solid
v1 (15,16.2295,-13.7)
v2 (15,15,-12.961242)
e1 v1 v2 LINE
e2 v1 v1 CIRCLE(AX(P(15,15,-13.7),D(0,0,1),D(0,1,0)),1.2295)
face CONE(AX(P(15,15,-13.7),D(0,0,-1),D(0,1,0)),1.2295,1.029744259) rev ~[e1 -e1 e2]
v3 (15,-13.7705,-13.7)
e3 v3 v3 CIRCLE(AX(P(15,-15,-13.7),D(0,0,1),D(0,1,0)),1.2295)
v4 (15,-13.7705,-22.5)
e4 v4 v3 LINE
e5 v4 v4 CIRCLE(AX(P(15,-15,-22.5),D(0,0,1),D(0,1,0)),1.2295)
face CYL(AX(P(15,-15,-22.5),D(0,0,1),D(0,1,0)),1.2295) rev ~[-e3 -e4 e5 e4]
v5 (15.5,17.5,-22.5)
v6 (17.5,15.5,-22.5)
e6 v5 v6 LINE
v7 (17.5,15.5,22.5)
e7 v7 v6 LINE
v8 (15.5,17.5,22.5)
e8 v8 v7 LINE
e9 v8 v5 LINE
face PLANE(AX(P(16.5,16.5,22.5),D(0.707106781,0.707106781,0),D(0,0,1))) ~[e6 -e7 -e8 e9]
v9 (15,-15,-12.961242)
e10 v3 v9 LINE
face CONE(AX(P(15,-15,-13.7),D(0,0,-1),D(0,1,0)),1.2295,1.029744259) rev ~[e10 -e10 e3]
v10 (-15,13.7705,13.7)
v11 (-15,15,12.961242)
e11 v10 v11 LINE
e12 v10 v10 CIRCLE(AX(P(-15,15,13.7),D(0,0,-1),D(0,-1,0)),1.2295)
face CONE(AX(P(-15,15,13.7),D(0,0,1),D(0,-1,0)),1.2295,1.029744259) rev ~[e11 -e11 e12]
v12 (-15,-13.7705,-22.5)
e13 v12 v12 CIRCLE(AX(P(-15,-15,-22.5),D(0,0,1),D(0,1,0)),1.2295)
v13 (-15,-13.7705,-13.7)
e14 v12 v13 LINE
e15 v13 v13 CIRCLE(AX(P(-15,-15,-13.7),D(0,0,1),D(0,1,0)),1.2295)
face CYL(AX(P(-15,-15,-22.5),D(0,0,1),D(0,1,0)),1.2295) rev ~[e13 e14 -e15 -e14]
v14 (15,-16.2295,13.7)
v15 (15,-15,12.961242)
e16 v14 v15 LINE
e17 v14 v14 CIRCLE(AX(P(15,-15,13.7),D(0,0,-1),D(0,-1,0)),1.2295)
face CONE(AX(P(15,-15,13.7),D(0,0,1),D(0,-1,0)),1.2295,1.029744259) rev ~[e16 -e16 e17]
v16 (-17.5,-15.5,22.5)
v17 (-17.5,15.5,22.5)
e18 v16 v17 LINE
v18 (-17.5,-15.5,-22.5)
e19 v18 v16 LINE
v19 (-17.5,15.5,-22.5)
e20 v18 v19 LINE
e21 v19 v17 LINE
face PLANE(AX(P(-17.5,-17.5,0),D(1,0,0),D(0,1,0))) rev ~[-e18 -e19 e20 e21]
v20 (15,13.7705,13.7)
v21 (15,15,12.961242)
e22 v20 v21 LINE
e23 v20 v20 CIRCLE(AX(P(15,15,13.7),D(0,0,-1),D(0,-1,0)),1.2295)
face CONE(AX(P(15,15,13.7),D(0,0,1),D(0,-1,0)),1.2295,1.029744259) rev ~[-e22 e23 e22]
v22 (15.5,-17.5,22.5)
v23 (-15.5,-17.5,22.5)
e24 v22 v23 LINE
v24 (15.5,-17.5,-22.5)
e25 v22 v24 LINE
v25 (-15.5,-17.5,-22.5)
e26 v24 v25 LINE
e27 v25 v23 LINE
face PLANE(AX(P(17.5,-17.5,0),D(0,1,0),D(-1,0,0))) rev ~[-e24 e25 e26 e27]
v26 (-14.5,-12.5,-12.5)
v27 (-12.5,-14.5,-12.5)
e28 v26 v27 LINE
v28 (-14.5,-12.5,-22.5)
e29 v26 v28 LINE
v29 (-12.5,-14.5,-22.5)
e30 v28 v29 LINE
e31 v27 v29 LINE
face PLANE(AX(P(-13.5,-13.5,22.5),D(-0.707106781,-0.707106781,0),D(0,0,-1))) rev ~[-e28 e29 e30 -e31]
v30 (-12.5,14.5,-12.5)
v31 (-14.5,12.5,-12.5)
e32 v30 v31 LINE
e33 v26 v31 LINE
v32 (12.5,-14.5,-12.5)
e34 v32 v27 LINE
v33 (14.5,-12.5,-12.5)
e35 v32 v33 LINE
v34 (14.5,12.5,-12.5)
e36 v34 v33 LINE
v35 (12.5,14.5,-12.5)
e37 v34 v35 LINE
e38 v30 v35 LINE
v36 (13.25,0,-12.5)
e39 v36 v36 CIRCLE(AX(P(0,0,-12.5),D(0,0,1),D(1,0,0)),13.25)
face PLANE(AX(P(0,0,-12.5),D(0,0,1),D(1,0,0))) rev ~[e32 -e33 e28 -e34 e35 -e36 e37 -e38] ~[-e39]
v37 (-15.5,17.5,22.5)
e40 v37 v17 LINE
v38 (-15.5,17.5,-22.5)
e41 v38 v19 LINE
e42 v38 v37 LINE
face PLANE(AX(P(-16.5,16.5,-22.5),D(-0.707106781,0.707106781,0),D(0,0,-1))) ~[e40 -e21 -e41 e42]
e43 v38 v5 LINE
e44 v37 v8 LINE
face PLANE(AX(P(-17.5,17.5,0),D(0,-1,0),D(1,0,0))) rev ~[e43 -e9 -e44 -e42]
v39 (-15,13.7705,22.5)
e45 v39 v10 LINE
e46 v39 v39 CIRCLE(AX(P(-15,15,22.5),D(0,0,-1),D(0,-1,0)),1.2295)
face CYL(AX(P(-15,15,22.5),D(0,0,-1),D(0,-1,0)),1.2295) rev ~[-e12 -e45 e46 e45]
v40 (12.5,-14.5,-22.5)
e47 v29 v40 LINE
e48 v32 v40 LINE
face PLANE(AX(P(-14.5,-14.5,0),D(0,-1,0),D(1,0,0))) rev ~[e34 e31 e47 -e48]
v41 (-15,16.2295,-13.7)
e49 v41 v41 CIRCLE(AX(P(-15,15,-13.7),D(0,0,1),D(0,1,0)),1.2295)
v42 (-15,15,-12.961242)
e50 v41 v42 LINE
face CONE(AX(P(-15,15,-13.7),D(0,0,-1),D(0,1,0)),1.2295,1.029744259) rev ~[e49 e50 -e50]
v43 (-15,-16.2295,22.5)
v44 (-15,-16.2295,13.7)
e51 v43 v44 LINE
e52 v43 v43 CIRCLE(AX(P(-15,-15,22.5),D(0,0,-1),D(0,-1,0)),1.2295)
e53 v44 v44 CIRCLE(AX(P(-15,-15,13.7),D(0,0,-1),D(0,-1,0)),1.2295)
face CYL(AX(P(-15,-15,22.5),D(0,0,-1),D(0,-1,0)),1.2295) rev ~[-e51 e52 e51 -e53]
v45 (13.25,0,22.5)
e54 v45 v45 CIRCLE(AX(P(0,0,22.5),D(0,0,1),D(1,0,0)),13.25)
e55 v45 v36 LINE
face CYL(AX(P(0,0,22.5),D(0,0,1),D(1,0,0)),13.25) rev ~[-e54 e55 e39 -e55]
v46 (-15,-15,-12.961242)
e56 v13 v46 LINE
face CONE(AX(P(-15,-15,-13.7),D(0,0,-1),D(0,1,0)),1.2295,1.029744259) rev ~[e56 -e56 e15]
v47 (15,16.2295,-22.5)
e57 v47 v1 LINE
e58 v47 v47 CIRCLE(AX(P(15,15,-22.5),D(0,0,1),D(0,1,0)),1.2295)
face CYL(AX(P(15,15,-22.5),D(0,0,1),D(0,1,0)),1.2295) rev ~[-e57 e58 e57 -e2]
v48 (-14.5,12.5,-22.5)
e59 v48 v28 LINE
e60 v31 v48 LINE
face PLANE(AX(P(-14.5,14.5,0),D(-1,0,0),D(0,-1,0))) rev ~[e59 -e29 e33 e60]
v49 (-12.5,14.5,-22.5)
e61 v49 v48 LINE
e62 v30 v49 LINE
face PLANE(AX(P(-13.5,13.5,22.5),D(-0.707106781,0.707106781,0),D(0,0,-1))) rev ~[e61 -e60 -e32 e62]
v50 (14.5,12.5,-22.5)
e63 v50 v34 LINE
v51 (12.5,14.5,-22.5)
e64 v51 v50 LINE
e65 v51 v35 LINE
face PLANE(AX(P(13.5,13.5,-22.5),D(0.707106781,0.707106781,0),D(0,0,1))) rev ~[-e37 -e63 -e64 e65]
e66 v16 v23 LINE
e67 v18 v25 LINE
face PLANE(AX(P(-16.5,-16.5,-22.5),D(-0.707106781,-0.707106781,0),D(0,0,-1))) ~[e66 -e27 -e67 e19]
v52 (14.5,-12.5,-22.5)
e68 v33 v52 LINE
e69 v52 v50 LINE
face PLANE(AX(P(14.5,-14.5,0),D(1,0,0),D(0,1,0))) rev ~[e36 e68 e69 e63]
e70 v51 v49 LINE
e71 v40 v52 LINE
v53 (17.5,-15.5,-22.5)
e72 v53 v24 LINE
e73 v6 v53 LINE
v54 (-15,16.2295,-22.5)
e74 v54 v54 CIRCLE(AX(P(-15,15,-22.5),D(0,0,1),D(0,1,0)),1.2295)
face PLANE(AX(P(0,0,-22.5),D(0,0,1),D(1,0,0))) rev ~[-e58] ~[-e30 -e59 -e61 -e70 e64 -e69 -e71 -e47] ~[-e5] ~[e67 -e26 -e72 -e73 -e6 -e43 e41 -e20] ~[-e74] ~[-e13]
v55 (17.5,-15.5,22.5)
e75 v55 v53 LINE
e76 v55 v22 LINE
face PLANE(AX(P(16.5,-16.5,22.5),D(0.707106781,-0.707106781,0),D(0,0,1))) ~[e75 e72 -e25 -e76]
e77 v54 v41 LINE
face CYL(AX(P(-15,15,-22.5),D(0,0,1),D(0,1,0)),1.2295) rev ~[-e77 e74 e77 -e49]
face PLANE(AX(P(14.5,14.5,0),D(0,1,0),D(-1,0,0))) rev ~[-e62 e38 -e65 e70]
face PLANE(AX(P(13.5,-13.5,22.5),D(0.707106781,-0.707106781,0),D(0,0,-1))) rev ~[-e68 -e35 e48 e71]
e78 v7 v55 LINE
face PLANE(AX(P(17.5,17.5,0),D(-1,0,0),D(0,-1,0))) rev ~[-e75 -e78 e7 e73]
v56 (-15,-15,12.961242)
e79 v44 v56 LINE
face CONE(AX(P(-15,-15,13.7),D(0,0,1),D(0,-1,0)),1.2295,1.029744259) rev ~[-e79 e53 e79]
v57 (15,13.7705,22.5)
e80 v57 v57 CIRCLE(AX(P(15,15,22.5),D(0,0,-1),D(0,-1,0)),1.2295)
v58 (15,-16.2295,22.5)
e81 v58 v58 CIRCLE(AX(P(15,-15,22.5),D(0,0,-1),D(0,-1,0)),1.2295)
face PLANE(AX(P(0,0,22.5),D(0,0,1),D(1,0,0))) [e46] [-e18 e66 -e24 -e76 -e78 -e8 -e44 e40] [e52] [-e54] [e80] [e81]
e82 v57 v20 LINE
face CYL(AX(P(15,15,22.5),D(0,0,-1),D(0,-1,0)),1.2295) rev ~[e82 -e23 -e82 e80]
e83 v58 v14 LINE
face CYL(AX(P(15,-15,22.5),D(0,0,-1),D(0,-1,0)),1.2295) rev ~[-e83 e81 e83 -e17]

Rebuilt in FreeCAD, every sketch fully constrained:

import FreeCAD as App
import Part
import Sketcher

V = App.Vector


def edges_at(feature, points):
    """Names of the edges that pass closest to the given points."""
    edges = feature.Shape.Edges
    near = lambda p: min(range(len(edges)), key=lambda i: edges[i].distToShape(Part.Vertex(*p))[0])
    return sorted({f"Edge{near(p) + 1}" for p in points})

doc = App.newDocument("Part")
body = doc.addObject("PartDesign::Body", "Body")

# Sketch on XY plane
sketch1 = doc.addObject("Sketcher::SketchObject", "Sketch")
body.addObject(sketch1)
sketch1.AttachmentSupport = (doc.XY_Plane, [""])
sketch1.MapMode = "FlatFace"
sketch1.addGeometry([
    Part.LineSegment(V(17.5, 17.5, 0), V(-17.5, 17.5, 0)),  # 0
    Part.LineSegment(V(-17.5, 17.5, 0), V(-17.5, -17.5, 0)),  # 1
    Part.LineSegment(V(-17.5, -17.5, 0), V(17.5, -17.5, 0)),  # 2
    Part.LineSegment(V(17.5, -17.5, 0), V(17.5, 17.5, 0)),  # 3
    Part.LineSegment(V(-14.5, 14.5, 0), V(14.5, 14.5, 0)),  # 4
    Part.LineSegment(V(14.5, 14.5, 0), V(14.5, -14.5, 0)),  # 5
    Part.LineSegment(V(14.5, -14.5, 0), V(-14.5, -14.5, 0)),  # 6
    Part.LineSegment(V(-14.5, -14.5, 0), V(-14.5, 14.5, 0)),  # 7
], False)
sketch1.addConstraint([
    Sketcher.Constraint("Coincident", 0, 2, 1, 1),
    Sketcher.Constraint("Coincident", 1, 2, 2, 1),
    Sketcher.Constraint("Coincident", 2, 2, 3, 1),
    Sketcher.Constraint("Coincident", 3, 2, 0, 1),
    Sketcher.Constraint("Coincident", 4, 2, 5, 1),
    Sketcher.Constraint("Coincident", 5, 2, 6, 1),
    Sketcher.Constraint("Coincident", 6, 2, 7, 1),
    Sketcher.Constraint("Coincident", 7, 2, 4, 1),
    Sketcher.Constraint("Horizontal", 0),
    Sketcher.Constraint("Vertical", 1),
    Sketcher.Constraint("Horizontal", 2),
    Sketcher.Constraint("Vertical", 3),
    Sketcher.Constraint("Horizontal", 4),
    Sketcher.Constraint("Vertical", 5),
    Sketcher.Constraint("Horizontal", 6),
    Sketcher.Constraint("Vertical", 7),
    Sketcher.Constraint("Symmetric", 0, 2, 2, 2, -1, 1),
    Sketcher.Constraint("Symmetric", 4, 2, 6, 2, -1, 1),
    Sketcher.Constraint("Equal", 2, 1),
    Sketcher.Constraint("Equal", 6, 5),
    Sketcher.Constraint("DistanceX", 0, 2, 0, 1, 35.0),
    Sketcher.Constraint("DistanceX", 4, 2, 3, 2, 3.0),
])
pad1 = doc.addObject("PartDesign::Pad", "Pad")
body.addObject(pad1)
pad1.Profile = sketch1
pad1.Length = 45
pad1.Midplane = True
doc.recompute()

chamfer = doc.addObject("PartDesign::Chamfer", "Chamfer")
body.addObject(chamfer)
chamfer.Base = (pad1, edges_at(pad1, [
    (-17.5, 17.5, 0),
    (17.5, 17.5, 0),
    (-14.5, 14.5, 0),
    (14.5, 14.5, 0),
    (-14.5, -14.5, 0),
    (14.5, -14.5, 0),
    (17.5, -17.5, 0),
    (-17.5, -17.5, 0),
]))
chamfer.Size = 2

# Sketch on XY plane
sketch2 = doc.addObject("Sketcher::SketchObject", "Sketch001")
body.addObject(sketch2)
sketch2.AttachmentSupport = (doc.XY_Plane, [""])
sketch2.MapMode = "FlatFace"
sketch2.AttachmentOffset = App.Placement(V(0, 0, 22.5), App.Rotation())
sketch2.addGeometry([
    Part.Circle(V(-15, 15, 0), V(0, 0, 1), 1.2295),
    Part.Circle(V(15, 15, 0), V(0, 0, 1), 1.2295),
    Part.Circle(V(15, -15, 0), V(0, 0, 1), 1.2295),
    Part.Circle(V(-15, -15, 0), V(0, 0, 1), 1.2295),
], False)
sketch2.addConstraint([
    Sketcher.Constraint("Equal", 0, 1),
    Sketcher.Constraint("Equal", 1, 2),
    Sketcher.Constraint("Equal", 2, 3),
    Sketcher.Constraint("Symmetric", 0, 3, 2, 3, -1, 1),
    Sketcher.Constraint("Symmetric", 1, 3, 3, 3, -1, 1),
    Sketcher.Constraint("Symmetric", 0, 3, 1, 3, -2),
    Sketcher.Constraint("Diameter", 0, 2.459),
    Sketcher.Constraint("DistanceX", 0, 3, -1, 1, 15.0),
    Sketcher.Constraint("DistanceY", -1, 1, 0, 3, 15.0),
])
doc.recompute()
hole = doc.addObject("PartDesign::Hole", "Hole")
body.addObject(hole)
hole.Profile = sketch2
hole.ThreadType = "None"
hole.Diameter = 2.459
hole.DepthType = "Dimension"
hole.Depth = 8.8
hole.DrillPoint = "Angled"
hole.DrillPointAngle = 118

# Sketch on XY plane
sketch3 = doc.addObject("Sketcher::SketchObject", "Sketch002")
body.addObject(sketch3)
sketch3.AttachmentSupport = (doc.XY_Plane, [""])
sketch3.MapMode = "FlatFace"
sketch3.AttachmentOffset = App.Placement(V(0, 0, -22.5), App.Rotation())
sketch3.addGeometry([
    Part.Circle(V(15, 15, 0), V(0, 0, 1), 1.2295),
    Part.Circle(V(-15, 15, 0), V(0, 0, 1), 1.2295),
    Part.Circle(V(-15, -15, 0), V(0, 0, 1), 1.2295),
    Part.Circle(V(15, -15, 0), V(0, 0, 1), 1.2295),
], False)
sketch3.addConstraint([
    Sketcher.Constraint("Equal", 0, 1),
    Sketcher.Constraint("Equal", 1, 2),
    Sketcher.Constraint("Equal", 2, 3),
    Sketcher.Constraint("Symmetric", 0, 3, 2, 3, -1, 1),
    Sketcher.Constraint("Symmetric", 1, 3, 3, 3, -1, 1),
    Sketcher.Constraint("Symmetric", 0, 3, 1, 3, -2),
    Sketcher.Constraint("Diameter", 0, 2.459),
    Sketcher.Constraint("DistanceX", -1, 1, 0, 3, 15.0),
    Sketcher.Constraint("DistanceY", -1, 1, 0, 3, 15.0),
])
doc.recompute()
hole2 = doc.addObject("PartDesign::Hole", "Hole001")
body.addObject(hole2)
hole2.Profile = sketch3
hole2.ThreadType = "None"
hole2.Diameter = 2.459
hole2.DepthType = "Dimension"
hole2.Depth = 8.8
hole2.DrillPoint = "Angled"
hole2.DrillPointAngle = 118
hole2.Reversed = True

# Sketch on XY plane
sketch4 = doc.addObject("Sketcher::SketchObject", "Sketch003")
body.addObject(sketch4)
sketch4.AttachmentSupport = (doc.XY_Plane, [""])
sketch4.MapMode = "FlatFace"
sketch4.AttachmentOffset = App.Placement(V(0, 0, 22.5), App.Rotation())
sketch4.addGeometry([
    Part.LineSegment(V(14.5, -12.5, 0), V(14.5, 12.5, 0)),  # 0
    Part.LineSegment(V(14.5, 12.5, 0), V(12.5, 14.5, 0)),  # 1
    Part.LineSegment(V(12.5, 14.5, 0), V(-12.5, 14.5, 0)),  # 2
    Part.LineSegment(V(-12.5, 14.5, 0), V(-14.5, 12.5, 0)),  # 3
    Part.LineSegment(V(-14.5, 12.5, 0), V(-14.5, -12.5, 0)),  # 4
    Part.LineSegment(V(-14.5, -12.5, 0), V(-12.5, -14.5, 0)),  # 5
    Part.LineSegment(V(-12.5, -14.5, 0), V(12.5, -14.5, 0)),  # 6
    Part.LineSegment(V(12.5, -14.5, 0), V(14.5, -12.5, 0)),  # 7
    Part.Circle(V(0, 0, 0), V(0, 0, 1), 13.25),  # 8
], False)
sketch4.addConstraint([
    Sketcher.Constraint("Coincident", 0, 2, 1, 1),
    Sketcher.Constraint("Coincident", 1, 2, 2, 1),
    Sketcher.Constraint("Coincident", 2, 2, 3, 1),
    Sketcher.Constraint("Coincident", 3, 2, 4, 1),
    Sketcher.Constraint("Coincident", 4, 2, 5, 1),
    Sketcher.Constraint("Coincident", 5, 2, 6, 1),
    Sketcher.Constraint("Coincident", 6, 2, 7, 1),
    Sketcher.Constraint("Coincident", 7, 2, 0, 1),
    Sketcher.Constraint("Vertical", 0),
    Sketcher.Constraint("Horizontal", 2),
    Sketcher.Constraint("Vertical", 4),
    Sketcher.Constraint("Horizontal", 6),
    Sketcher.Constraint("Coincident", 8, 3, -1, 1),
    Sketcher.Constraint("Symmetric", 0, 2, 4, 2, -1, 1),
    Sketcher.Constraint("Symmetric", 1, 2, 5, 2, -1, 1),
    Sketcher.Constraint("Perpendicular", 1, 3),
    Sketcher.Constraint("Perpendicular", 5, 7),
    Sketcher.Constraint("Horizontal", 0, 2, 3, 2),
    Sketcher.Constraint("Horizontal", 4, 2, 7, 2),
    Sketcher.Constraint("Vertical", 2, 2, 5, 2),
    Sketcher.Constraint("Equal", 6, 0),
    Sketcher.Constraint("Diameter", 8, 26.5),
    Sketcher.Constraint("DistanceX", 2, 2, 2, 1, 25.0),
    Sketcher.Constraint("DistanceX", 1, 2, 0, 2, 2.0),
])
pad2 = doc.addObject("PartDesign::Pad", "Pad001")
body.addObject(pad2)
pad2.Profile = sketch4
pad2.Length = 35
pad2.Reversed = True

doc.recompute()
